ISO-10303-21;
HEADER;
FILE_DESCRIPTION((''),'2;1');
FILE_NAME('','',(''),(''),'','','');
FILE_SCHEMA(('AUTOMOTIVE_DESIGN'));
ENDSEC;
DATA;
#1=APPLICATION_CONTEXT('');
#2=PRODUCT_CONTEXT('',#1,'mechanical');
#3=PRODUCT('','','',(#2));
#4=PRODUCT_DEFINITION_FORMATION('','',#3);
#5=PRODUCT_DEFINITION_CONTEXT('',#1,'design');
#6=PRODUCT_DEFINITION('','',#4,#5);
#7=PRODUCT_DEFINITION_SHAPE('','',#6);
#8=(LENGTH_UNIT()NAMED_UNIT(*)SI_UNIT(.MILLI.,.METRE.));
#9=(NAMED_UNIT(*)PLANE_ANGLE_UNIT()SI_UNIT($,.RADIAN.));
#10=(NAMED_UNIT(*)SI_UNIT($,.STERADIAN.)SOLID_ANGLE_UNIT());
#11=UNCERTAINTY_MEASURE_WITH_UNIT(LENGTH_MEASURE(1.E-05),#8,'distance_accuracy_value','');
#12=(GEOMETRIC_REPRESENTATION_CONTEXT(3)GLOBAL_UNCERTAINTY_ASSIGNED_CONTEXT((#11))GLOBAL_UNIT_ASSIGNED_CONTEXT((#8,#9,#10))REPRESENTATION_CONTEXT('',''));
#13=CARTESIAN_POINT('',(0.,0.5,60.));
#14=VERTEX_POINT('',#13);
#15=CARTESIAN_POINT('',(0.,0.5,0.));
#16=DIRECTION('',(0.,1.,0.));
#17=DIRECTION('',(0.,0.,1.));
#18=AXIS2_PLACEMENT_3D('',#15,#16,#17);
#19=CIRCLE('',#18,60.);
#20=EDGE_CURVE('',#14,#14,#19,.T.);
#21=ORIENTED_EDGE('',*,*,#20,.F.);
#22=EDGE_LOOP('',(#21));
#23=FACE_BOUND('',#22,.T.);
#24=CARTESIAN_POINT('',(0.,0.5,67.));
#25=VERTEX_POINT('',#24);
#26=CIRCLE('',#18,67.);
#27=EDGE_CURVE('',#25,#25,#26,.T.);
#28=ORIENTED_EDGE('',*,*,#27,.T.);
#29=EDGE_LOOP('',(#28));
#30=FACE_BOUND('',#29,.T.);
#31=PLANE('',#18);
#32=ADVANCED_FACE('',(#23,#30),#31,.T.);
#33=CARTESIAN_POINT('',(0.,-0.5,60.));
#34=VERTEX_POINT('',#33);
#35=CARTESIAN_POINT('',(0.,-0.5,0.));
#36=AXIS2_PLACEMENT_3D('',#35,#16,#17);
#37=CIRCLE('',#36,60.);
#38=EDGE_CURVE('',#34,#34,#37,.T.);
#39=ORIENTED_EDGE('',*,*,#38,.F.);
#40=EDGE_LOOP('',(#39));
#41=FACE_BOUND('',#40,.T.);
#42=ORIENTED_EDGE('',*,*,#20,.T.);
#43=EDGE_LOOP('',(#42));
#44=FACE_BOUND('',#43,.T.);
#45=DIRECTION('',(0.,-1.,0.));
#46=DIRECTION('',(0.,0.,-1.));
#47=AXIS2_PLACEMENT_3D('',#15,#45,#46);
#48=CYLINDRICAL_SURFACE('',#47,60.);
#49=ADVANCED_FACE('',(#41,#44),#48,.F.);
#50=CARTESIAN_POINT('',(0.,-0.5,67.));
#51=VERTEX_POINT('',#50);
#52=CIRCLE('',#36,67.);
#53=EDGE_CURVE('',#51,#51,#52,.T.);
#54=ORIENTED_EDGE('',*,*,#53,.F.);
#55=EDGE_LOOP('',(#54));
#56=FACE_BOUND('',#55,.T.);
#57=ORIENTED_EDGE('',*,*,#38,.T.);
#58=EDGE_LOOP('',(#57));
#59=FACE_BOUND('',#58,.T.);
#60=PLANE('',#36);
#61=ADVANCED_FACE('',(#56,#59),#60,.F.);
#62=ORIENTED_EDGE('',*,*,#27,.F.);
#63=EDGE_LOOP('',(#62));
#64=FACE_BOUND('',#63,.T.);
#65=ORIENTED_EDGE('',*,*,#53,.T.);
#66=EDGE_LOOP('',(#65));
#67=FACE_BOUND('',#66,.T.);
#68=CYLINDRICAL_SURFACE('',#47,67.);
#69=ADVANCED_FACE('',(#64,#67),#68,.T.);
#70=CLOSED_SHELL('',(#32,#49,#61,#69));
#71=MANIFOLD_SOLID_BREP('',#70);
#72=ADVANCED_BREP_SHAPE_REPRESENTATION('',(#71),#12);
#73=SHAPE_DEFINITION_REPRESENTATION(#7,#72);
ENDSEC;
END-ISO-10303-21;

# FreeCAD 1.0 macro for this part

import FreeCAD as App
import Part
import Sketcher
Q = App.Units.Quantity

doc = App.newDocument("Part")
body = doc.addObject("PartDesign::Body", "Body")

sketch1 = doc.addObject("Sketcher::SketchObject", "Sketch")
body.addObject(sketch1)
sketch1.AttachmentSupport = (doc.XZ_Plane, [""])
sketch1.MapMode = "FlatFace"
sketch1.addGeometry([
    Part.Circle(App.Vector(0, 0, 0), App.Vector(0, 0, 1), 67),
    Part.Circle(App.Vector(0, 0, 0), App.Vector(0, 0, 1), 60),
], False)
sketch1.addConstraint([
    Sketcher.Constraint("Coincident", 0, 3, -1, 1),
    Sketcher.Constraint("Coincident", 1, 3, -1, 1),
    Sketcher.Constraint("Diameter", 0, Q("134 mm")),
    Sketcher.Constraint("Diameter", 1, Q("120 mm")),
])
pad1 = doc.addObject("PartDesign::Pad", "Pad")
body.addObject(pad1)
pad1.Profile = sketch1
pad1.Length = 1
pad1.Midplane = True

doc.recompute()
